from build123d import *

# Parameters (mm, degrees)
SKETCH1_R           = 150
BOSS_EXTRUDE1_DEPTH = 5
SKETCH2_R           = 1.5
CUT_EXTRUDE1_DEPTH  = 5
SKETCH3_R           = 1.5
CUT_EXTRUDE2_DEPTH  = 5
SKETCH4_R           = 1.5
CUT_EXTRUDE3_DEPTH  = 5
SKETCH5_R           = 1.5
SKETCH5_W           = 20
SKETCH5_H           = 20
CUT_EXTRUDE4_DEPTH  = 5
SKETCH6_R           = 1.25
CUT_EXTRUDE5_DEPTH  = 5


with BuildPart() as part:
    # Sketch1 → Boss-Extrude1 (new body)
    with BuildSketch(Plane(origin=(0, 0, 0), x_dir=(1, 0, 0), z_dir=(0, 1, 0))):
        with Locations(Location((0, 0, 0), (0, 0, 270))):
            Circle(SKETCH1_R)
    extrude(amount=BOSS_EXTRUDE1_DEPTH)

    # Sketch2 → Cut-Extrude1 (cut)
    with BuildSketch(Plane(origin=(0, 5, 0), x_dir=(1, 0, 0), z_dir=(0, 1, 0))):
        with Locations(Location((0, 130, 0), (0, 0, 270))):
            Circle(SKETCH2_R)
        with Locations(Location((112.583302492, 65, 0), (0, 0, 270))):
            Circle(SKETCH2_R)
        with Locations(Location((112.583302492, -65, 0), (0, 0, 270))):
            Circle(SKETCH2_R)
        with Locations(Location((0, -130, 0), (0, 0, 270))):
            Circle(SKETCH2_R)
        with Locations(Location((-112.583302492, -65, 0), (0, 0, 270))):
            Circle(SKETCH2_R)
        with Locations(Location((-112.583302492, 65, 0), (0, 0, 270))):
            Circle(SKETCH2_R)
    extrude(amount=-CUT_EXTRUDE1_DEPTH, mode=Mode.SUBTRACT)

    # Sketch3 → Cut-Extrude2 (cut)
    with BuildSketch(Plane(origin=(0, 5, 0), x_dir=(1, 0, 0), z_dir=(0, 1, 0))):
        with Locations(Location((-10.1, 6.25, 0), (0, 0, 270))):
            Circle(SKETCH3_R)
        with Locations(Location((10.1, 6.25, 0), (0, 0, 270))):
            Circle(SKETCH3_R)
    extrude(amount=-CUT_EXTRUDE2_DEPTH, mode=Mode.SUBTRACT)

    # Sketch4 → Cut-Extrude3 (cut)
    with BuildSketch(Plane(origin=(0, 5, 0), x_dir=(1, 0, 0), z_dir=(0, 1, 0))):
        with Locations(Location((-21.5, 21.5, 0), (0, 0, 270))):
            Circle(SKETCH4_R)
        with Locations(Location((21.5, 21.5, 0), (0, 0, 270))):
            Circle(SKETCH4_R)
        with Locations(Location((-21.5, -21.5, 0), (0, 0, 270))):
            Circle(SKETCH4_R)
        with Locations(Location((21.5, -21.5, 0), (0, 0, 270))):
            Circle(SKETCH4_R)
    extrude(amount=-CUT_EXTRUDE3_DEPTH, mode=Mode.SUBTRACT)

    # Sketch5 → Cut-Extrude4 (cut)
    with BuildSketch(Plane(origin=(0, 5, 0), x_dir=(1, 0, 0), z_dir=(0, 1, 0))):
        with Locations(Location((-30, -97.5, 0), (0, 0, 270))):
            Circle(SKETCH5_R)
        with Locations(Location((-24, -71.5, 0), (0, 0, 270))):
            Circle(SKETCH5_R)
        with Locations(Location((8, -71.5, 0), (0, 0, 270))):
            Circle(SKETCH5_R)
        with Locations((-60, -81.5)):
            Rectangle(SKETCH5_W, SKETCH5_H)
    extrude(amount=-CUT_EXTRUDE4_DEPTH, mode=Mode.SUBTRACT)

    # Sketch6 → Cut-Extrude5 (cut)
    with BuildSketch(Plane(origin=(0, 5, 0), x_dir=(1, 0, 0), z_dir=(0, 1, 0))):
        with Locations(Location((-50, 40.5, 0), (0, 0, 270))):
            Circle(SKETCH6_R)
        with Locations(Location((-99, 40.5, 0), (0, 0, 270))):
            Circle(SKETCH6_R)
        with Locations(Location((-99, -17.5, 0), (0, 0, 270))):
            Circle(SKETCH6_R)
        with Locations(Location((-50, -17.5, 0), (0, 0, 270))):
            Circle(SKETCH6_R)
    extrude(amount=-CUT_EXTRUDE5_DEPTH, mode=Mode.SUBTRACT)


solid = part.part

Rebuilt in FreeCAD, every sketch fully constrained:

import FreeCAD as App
import Part
import Sketcher
from FreeCAD import Vector

doc = App.newDocument("Part")
params = doc.addObject("Spreadsheet::Sheet", "Params")
for row, (alias, value) in enumerate([
    ("sketch1_diameter", "300 mm"),
    ("pad1_length", "5 mm"),
    ("sketch2_diameter", "3 mm"),
    ("pocket1_length", "5 mm"),
    ("sketch3_diameter", "3 mm"),
    ("pocket2_length", "5 mm"),
    ("sketch4_diameter", "3 mm"),
    ("pocket3_length", "5 mm"),
    ("sketch5_diameter", "3 mm"),
    ("sketch5_width", "20 mm"),
    ("pocket4_length", "5 mm"),
    ("sketch6_diameter", "2.5 mm"),
    ("pocket5_length", "5 mm"),
], start=1):
    params.set(f"A{row}", alias)
    params.set(f"B{row}", "=" + value)
    params.setAlias(f"B{row}", alias)

body = doc.addObject("PartDesign::Body", "Body")

sketch1 = doc.addObject("Sketcher::SketchObject", "Sketch")
body.addObject(sketch1)
sketch1.AttachmentSupport = (doc.XZ_Plane, [""])
sketch1.MapMode = "FlatFace"
sketch1.addGeometry(Part.Circle(Vector(0, 0, 0), Vector(0, 0, 1), 150), False)
sketch1.addConstraint([
    Sketcher.Constraint("Coincident", 0, 3, -1, 1),
    Sketcher.Constraint("Diameter", 0, 300.0),
])
sketch1.setExpression("Constraints[1]", "Params.sketch1_diameter")
pad1 = doc.addObject("PartDesign::Pad", "Pad")
body.addObject(pad1)
pad1.Profile = sketch1
pad1.setExpression("Length", "Params.pad1_length")
pad1.Reversed = True

sketch2 = doc.addObject("Sketcher::SketchObject", "Sketch001")
body.addObject(sketch2)
sketch2.AttachmentSupport = (doc.XZ_Plane, [""])
sketch2.MapMode = "FlatFace"
sketch2.AttachmentOffset = App.Placement(Vector(0, 0, -5), App.Rotation())
sketch2.addGeometry([
    Part.Circle(Vector(0, -130, 0), Vector(0, 0, 1), 1.5),
    Part.Circle(Vector(112.6, -65, 0), Vector(0, 0, 1), 1.5),
    Part.Circle(Vector(112.6, 65, 0), Vector(0, 0, 1), 1.5),
    Part.Circle(Vector(0, 130, 0), Vector(0, 0, 1), 1.5),
    Part.Circle(Vector(-112.6, 65, 0), Vector(0, 0, 1), 1.5),
    Part.Circle(Vector(-112.6, -65, 0), Vector(0, 0, 1), 1.5),
], False)
sketch2.addConstraint([
    Sketcher.Constraint("Equal", 0, 1),
    Sketcher.Constraint("Equal", 1, 2),
    Sketcher.Constraint("Equal", 2, 3),
    Sketcher.Constraint("Equal", 3, 4),
    Sketcher.Constraint("Equal", 4, 5),
    Sketcher.Constraint("Symmetric", 0, 3, 3, 3, -1, 1),
    Sketcher.Constraint("Symmetric", 1, 3, 4, 3, -1, 1),
    Sketcher.Constraint("Symmetric", 2, 3, 5, 3, -1, 1),
    Sketcher.Constraint("Symmetric", 2, 3, 4, 3, -2),
    Sketcher.Constraint("PointOnObject", 0, 3, -2),
    Sketcher.Constraint("Diameter", 0, 3.0),
    Sketcher.Constraint("DistanceY", 0, 3, -1, 1, 130.0),
    Sketcher.Constraint("DistanceY", 1, 3, -1, 1, 65.0),
    Sketcher.Constraint("DistanceX", -1, 1, 1, 3, 112.583302),
])
sketch2.setExpression("Constraints[10]", "Params.sketch2_diameter")
pocket1 = doc.addObject("PartDesign::Pocket", "Pocket")
body.addObject(pocket1)
pocket1.Profile = sketch2
pocket1.setExpression("Length", "Params.pocket1_length")
pocket1.Reversed = True

sketch3 = doc.addObject("Sketcher::SketchObject", "Sketch002")
body.addObject(sketch3)
sketch3.AttachmentSupport = (doc.XZ_Plane, [""])
sketch3.MapMode = "FlatFace"
sketch3.AttachmentOffset = App.Placement(Vector(0, 0, -5), App.Rotation())
sketch3.addGeometry([
    Part.Circle(Vector(-10.1, -6.2, 0), Vector(0, 0, 1), 1.5),
    Part.Circle(Vector(10.1, -6.2, 0), Vector(0, 0, 1), 1.5),
], False)
sketch3.addConstraint([
    Sketcher.Constraint("Equal", 0, 1),
    Sketcher.Constraint("Symmetric", 0, 3, 1, 3, -2),
    Sketcher.Constraint("Diameter", 0, 3.0),
    Sketcher.Constraint("DistanceX", 0, 3, -1, 1, 10.1),
    Sketcher.Constraint("DistanceY", 0, 3, -1, 1, 6.25),
])
sketch3.setExpression("Constraints[2]", "Params.sketch3_diameter")
pocket2 = doc.addObject("PartDesign::Pocket", "Pocket001")
body.addObject(pocket2)
pocket2.Profile = sketch3
pocket2.setExpression("Length", "Params.pocket2_length")
pocket2.Reversed = True

sketch4 = doc.addObject("Sketcher::SketchObject", "Sketch003")
body.addObject(sketch4)
sketch4.AttachmentSupport = (doc.XZ_Plane, [""])
sketch4.MapMode = "FlatFace"
sketch4.AttachmentOffset = App.Placement(Vector(0, 0, -5), App.Rotation())
sketch4.addGeometry([
    Part.Circle(Vector(-21.5, -21.5, 0), Vector(0, 0, 1), 1.5),
    Part.Circle(Vector(21.5, -21.5, 0), Vector(0, 0, 1), 1.5),
    Part.Circle(Vector(-21.5, 21.5, 0), Vector(0, 0, 1), 1.5),
    Part.Circle(Vector(21.5, 21.5, 0), Vector(0, 0, 1), 1.5),
], False)
sketch4.addConstraint([
    Sketcher.Constraint("Equal", 0, 1),
    Sketcher.Constraint("Equal", 1, 2),
    Sketcher.Constraint("Equal", 2, 3),
    Sketcher.Constraint("Symmetric", 1, 3, 2, 3, -1, 1),
    Sketcher.Constraint("Symmetric", 0, 3, 3, 3, -1, 1),
    Sketcher.Constraint("Symmetric", 0, 3, 1, 3, -2),
    Sketcher.Constraint("Diameter", 0, 3.0),
    Sketcher.Constraint("DistanceX", 0, 3, 1, 3, 43.0),
    Sketcher.Constraint("DistanceY", 0, 3, 2, 3, 43.0),
])
sketch4.setExpression("Constraints[6]", "Params.sketch4_diameter")
pocket3 = doc.addObject("PartDesign::Pocket", "Pocket002")
body.addObject(pocket3)
pocket3.Profile = sketch4
pocket3.setExpression("Length", "Params.pocket3_length")
pocket3.Reversed = True

sketch5 = doc.addObject("Sketcher::SketchObject", "Sketch004")
body.addObject(sketch5)
sketch5.AttachmentSupport = (doc.XZ_Plane, [""])
sketch5.MapMode = "FlatFace"
sketch5.AttachmentOffset = App.Placement(Vector(0, 0, -5), App.Rotation())
sketch5.addGeometry([
    Part.Circle(Vector(-30, 97.5, 0), Vector(0, 0, 1), 1.5),
    Part.Circle(Vector(-24, 71.5, 0), Vector(0, 0, 1), 1.5),
    Part.Circle(Vector(8, 71.5, 0), Vector(0, 0, 1), 1.5),
    Part.LineSegment(Vector(-70, 71.5, 0), Vector(-70, 91.5, 0)),
    Part.LineSegment(Vector(-70, 91.5, 0), Vector(-50, 91.5, 0)),
    Part.LineSegment(Vector(-50, 91.5, 0), Vector(-50, 71.5, 0)),
    Part.LineSegment(Vector(-50, 71.5, 0), Vector(-70, 71.5, 0)),
], False)
sketch5.addConstraint([
    Sketcher.Constraint("Coincident", 3, 2, 4, 1),
    Sketcher.Constraint("Coincident", 4, 2, 5, 1),
    Sketcher.Constraint("Coincident", 5, 2, 6, 1),
    Sketcher.Constraint("Coincident", 6, 2, 3, 1),
    Sketcher.Constraint("Vertical", 3),
    Sketcher.Constraint("Horizontal", 4),
    Sketcher.Constraint("Vertical", 5),
    Sketcher.Constraint("Horizontal", 6),
    Sketcher.Constraint("Equal", 0, 1),
    Sketcher.Constraint("Equal", 1, 2),
    Sketcher.Constraint("Horizontal", 1, 3, 2, 3),
    Sketcher.Constraint("Horizontal", 2, 3, 5, 2),
    Sketcher.Constraint("Equal", 6, 3),
    Sketcher.Constraint("Diameter", 0, 3.0),
    Sketcher.Constraint("DistanceX", 4, 1, 4, 2, 20.0),
    Sketcher.Constraint("DistanceX", 0, 3, -1, 1, 30.0),
    Sketcher.Constraint("DistanceX", 1, 3, -1, 1, 24.0),
    Sketcher.Constraint("DistanceX", -1, 1, 2, 3, 8.0),
    Sketcher.Constraint("DistanceX", 3, 2, -1, 1, 70.0),
    Sketcher.Constraint("DistanceY", 1, 3, 0, 3, 26.0),
    Sketcher.Constraint("DistanceY", -1, 1, 0, 3, 97.5),
])
sketch5.setExpression("Constraints[13]", "Params.sketch5_diameter")
sketch5.setExpression("Constraints[14]", "Params.sketch5_width")
pocket4 = doc.addObject("PartDesign::Pocket", "Pocket003")
body.addObject(pocket4)
pocket4.Profile = sketch5
pocket4.setExpression("Length", "Params.pocket4_length")
pocket4.Reversed = True

sketch6 = doc.addObject("Sketcher::SketchObject", "Sketch005")
body.addObject(sketch6)
sketch6.AttachmentSupport = (doc.XZ_Plane, [""])
sketch6.MapMode = "FlatFace"
sketch6.AttachmentOffset = App.Placement(Vector(0, 0, -5), App.Rotation())
sketch6.addGeometry([
    Part.Circle(Vector(-50, -40.5, 0), Vector(0, 0, 1), 1.2),
    Part.Circle(Vector(-99, -40.5, 0), Vector(0, 0, 1), 1.2),
    Part.Circle(Vector(-99, 17.5, 0), Vector(0, 0, 1), 1.2),
    Part.Circle(Vector(-50, 17.5, 0), Vector(0, 0, 1), 1.2),
], False)
sketch6.addConstraint([
    Sketcher.Constraint("Equal", 0, 1),
    Sketcher.Constraint("Equal", 1, 2),
    Sketcher.Constraint("Equal", 2, 3),
    Sketcher.Constraint("Horizontal", 0, 3, 1, 3),
    Sketcher.Constraint("Horizontal", 2, 3, 3, 3),
    Sketcher.Constraint("Vertical", 1, 3, 2, 3),
    Sketcher.Constraint("Vertical", 0, 3, 3, 3),
    Sketcher.Constraint("Diameter", 0, 2.5),
    Sketcher.Constraint("DistanceX", 0, 3, -1, 1, 50.0),
    Sketcher.Constraint("DistanceX", 1, 3, -1, 1, 99.0),
    Sketcher.Constraint("DistanceY", 1, 3, 2, 3, 58.0),
    Sketcher.Constraint("DistanceY", 0, 3, -1, 1, 40.5),
])
sketch6.setExpression("Constraints[7]", "Params.sketch6_diameter")
pocket5 = doc.addObject("PartDesign::Pocket", "Pocket004")
body.addObject(pocket5)
pocket5.Profile = sketch6
pocket5.setExpression("Length", "Params.pocket5_length")
pocket5.Reversed = True

doc.recompute()
